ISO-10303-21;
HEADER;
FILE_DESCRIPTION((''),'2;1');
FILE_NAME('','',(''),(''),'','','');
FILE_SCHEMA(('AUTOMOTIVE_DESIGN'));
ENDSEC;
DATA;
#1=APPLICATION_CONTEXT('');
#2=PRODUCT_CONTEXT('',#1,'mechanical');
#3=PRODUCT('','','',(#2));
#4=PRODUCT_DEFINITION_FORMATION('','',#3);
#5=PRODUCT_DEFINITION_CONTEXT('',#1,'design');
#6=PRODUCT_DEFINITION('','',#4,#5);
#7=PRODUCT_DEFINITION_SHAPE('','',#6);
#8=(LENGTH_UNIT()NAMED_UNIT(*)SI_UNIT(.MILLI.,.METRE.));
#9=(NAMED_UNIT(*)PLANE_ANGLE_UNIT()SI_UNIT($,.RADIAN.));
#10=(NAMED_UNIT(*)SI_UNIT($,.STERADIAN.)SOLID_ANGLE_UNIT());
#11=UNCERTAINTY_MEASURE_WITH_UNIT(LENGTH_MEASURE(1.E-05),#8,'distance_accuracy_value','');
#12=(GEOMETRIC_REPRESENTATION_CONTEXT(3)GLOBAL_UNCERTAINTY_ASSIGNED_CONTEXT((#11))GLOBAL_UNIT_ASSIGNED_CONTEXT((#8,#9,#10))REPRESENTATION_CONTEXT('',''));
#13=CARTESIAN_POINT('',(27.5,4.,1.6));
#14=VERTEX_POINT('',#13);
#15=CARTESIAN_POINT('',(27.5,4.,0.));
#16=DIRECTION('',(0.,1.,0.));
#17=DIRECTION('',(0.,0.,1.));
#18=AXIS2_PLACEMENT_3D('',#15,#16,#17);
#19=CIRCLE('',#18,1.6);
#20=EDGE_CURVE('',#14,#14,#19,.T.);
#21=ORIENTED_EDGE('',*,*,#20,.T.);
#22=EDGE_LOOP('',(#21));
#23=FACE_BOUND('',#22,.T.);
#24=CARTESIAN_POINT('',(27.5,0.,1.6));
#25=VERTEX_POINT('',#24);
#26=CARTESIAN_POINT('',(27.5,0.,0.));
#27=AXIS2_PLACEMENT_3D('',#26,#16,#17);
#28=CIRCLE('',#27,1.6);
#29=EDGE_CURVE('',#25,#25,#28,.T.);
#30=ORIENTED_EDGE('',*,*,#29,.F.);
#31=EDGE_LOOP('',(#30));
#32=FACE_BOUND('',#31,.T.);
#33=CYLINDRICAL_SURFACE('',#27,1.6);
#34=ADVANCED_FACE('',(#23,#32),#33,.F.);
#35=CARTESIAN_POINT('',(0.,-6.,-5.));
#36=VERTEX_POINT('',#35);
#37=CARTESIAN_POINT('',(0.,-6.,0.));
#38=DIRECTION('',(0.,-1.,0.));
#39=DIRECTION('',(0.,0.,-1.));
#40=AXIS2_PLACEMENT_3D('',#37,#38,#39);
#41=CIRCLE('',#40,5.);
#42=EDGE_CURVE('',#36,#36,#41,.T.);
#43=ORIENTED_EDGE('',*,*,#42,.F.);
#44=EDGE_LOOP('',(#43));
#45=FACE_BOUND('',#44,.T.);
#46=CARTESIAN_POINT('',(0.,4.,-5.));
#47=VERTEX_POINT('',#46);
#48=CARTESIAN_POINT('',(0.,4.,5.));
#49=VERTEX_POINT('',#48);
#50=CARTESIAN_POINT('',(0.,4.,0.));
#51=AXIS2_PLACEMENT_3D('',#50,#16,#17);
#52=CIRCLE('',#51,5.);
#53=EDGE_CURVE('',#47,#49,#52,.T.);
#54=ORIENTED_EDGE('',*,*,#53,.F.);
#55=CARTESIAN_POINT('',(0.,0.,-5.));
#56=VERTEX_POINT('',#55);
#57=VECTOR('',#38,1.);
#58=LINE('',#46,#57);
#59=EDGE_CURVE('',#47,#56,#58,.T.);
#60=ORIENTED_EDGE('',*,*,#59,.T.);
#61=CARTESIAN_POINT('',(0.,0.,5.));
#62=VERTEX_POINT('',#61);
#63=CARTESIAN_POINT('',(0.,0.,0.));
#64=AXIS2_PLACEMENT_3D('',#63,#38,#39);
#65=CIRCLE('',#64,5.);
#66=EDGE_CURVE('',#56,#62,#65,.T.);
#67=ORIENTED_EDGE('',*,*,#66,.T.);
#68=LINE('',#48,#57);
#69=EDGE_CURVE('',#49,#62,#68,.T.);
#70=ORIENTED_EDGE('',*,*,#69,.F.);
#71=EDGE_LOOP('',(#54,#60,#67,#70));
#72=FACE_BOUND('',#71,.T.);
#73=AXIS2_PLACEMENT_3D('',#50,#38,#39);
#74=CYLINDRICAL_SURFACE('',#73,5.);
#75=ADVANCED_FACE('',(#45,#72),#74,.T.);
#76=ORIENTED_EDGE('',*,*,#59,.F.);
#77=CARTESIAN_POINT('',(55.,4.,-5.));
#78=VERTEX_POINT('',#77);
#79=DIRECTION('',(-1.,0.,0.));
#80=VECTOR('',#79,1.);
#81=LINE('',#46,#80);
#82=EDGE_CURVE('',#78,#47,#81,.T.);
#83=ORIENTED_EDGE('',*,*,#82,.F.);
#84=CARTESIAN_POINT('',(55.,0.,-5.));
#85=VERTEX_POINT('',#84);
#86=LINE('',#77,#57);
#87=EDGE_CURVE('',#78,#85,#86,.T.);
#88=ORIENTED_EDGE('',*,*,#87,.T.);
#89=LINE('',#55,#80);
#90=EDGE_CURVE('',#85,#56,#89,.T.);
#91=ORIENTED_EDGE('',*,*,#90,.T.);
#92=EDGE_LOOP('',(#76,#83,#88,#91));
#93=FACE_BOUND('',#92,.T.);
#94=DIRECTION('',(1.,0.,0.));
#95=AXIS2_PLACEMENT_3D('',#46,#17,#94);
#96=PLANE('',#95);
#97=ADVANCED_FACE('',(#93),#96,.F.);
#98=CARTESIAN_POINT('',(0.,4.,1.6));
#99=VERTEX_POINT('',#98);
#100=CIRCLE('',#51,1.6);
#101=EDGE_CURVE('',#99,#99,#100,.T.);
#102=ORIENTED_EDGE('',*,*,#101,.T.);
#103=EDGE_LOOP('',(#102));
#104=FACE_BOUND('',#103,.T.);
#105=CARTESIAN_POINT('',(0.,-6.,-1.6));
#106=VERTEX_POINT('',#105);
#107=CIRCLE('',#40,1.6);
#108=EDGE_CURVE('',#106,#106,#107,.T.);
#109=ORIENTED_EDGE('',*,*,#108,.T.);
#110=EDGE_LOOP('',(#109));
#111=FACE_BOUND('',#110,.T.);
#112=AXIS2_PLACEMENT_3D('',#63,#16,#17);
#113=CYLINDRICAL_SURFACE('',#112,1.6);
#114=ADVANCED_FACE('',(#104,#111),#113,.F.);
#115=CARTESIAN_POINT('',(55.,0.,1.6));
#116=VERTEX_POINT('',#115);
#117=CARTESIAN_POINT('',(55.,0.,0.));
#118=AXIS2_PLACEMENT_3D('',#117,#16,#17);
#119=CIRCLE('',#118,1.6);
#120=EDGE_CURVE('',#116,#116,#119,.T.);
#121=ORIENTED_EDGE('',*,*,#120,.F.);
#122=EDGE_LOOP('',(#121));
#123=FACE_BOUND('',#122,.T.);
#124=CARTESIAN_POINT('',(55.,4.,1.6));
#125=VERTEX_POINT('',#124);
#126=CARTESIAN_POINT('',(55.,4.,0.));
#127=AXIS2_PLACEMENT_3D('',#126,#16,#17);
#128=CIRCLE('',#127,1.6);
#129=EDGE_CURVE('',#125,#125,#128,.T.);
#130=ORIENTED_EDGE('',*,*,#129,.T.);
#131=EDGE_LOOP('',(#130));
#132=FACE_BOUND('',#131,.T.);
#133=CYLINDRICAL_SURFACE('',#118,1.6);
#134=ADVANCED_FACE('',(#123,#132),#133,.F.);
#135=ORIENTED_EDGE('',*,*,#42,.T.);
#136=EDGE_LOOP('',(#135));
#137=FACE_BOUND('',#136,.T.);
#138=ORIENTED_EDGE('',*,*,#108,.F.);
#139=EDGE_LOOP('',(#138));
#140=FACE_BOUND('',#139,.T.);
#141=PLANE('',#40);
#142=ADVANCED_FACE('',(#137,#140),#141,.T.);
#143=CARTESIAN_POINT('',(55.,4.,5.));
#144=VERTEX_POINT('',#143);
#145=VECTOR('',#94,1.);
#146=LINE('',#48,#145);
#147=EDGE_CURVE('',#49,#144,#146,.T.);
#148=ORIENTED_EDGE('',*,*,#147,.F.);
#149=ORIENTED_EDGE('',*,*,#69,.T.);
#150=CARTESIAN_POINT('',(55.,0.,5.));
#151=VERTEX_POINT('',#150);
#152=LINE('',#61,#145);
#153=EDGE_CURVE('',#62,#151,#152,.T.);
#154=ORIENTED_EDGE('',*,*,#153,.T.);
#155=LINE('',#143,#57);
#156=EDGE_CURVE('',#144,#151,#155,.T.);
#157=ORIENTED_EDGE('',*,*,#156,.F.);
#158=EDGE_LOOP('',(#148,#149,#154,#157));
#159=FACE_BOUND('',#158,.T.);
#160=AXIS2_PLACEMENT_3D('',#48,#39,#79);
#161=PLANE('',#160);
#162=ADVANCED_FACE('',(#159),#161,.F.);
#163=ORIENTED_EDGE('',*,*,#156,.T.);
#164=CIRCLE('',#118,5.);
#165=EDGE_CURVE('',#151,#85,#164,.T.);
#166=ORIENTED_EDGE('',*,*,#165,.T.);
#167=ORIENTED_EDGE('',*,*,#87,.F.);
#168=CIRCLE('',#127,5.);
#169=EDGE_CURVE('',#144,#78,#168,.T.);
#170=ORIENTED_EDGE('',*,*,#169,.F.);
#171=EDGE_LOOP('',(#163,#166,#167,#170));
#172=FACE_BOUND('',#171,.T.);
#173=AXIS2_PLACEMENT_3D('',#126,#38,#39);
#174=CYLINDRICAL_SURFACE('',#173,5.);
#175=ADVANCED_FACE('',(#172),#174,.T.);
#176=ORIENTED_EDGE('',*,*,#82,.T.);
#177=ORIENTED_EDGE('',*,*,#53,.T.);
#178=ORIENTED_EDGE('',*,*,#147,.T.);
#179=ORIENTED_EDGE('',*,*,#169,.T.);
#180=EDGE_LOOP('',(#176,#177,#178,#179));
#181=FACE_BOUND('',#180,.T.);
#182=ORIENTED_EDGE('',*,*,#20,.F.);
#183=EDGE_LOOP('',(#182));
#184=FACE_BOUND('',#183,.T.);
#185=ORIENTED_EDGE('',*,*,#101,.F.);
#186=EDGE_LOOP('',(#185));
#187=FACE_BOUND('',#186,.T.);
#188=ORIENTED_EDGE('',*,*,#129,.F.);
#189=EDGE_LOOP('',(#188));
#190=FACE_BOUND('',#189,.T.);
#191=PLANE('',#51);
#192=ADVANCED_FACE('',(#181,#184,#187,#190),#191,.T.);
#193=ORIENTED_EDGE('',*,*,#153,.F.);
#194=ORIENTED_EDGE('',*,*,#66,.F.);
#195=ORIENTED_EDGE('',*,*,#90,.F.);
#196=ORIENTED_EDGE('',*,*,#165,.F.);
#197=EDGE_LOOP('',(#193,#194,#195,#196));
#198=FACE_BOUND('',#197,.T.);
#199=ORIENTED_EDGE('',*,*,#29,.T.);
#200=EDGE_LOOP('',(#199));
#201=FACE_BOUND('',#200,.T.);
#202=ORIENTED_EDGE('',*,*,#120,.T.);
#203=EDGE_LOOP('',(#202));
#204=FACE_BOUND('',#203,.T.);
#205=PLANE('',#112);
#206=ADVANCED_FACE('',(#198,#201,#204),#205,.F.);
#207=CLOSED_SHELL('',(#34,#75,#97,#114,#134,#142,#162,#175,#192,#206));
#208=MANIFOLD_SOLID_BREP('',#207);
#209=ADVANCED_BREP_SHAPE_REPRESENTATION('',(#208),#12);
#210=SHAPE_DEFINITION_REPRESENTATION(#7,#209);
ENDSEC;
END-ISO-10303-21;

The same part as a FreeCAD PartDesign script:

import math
import FreeCAD as App
import Part
import Sketcher

V = App.Vector

doc = App.newDocument("Part")
body = doc.addObject("PartDesign::Body", "Body")

# Sketch on XZ plane
sketch1 = body.newObject("Sketcher::SketchObject", "Sketch")
sketch1.AttachmentSupport = (doc.getObject("XZ_Plane"), [""])
sketch1.MapMode = "FlatFace"
sketch1.addGeometry([
    Part.LineSegment(V(55, -5, 0), V(0, -5, 0)),
    Part.ArcOfCircle(Part.Circle(V(0, 0, 0), V(0, 0, 1), 5), math.radians(90), math.radians(270)),
    Part.LineSegment(V(0, 5, 0), V(55, 5, 0)),
    Part.ArcOfCircle(Part.Circle(V(55, 0, 0), V(0, 0, 1), 5), math.radians(-90), math.radians(90)),
], False)
sketch1.addConstraint([
    Sketcher.Constraint("Tangent", 0, 2, 1, 2),
    Sketcher.Constraint("Tangent", 1, 1, 2, 1),
    Sketcher.Constraint("Tangent", 2, 2, 3, 2),
    Sketcher.Constraint("Tangent", 3, 1, 0, 1),
    Sketcher.Constraint("Horizontal", 0),
    Sketcher.Constraint("Horizontal", 2),
    Sketcher.Constraint("Coincident", 1, 3, -1, 1),
    Sketcher.Constraint("Radius", 1, 5.0),
    Sketcher.Constraint("DistanceX", 0, 2, 0, 1, 55.0),
])
pad1 = body.newObject("PartDesign::Pad", "Pad")
pad1.Profile = sketch1
pad1.Length = 4
pad1.Reversed = True

# Sketch on XZ plane
sketch2 = body.newObject("Sketcher::SketchObject", "Sketch001")
sketch2.AttachmentSupport = (doc.getObject("XZ_Plane"), [""])
sketch2.MapMode = "FlatFace"
sketch2.AttachmentOffset = App.Placement(V(0, 0, -4), App.Rotation())
sketch2.addGeometry([
    Part.Circle(V(0, 0, 0), V(0, 0, 1), 1.6),
    Part.Circle(V(27.5, 0, 0), V(0, 0, 1), 1.6),
    Part.Circle(V(55, 0, 0), V(0, 0, 1), 1.6),
], False)
sketch2.addConstraint([
    Sketcher.Constraint("Coincident", 0, 3, -1, 1),
    Sketcher.Constraint("Equal", 0, 1),
    Sketcher.Constraint("Equal", 1, 2),
    Sketcher.Constraint("PointOnObject", 1, 3, -1),
    Sketcher.Constraint("PointOnObject", 2, 3, -1),
    Sketcher.Constraint("Diameter", 0, 3.2),
    Sketcher.Constraint("DistanceX", -1, 1, 2, 3, 55.0),
    Sketcher.Constraint("DistanceX", -1, 1, 1, 3, 27.5),
])
pocket1 = body.newObject("PartDesign::Pocket", "Pocket")
pocket1.Profile = sketch2
pocket1.Type = "ThroughAll"
pocket1.Reversed = True

# Sketch on XZ plane
sketch3 = body.newObject("Sketcher::SketchObject", "Sketch002")
sketch3.AttachmentSupport = (doc.getObject("XZ_Plane"), [""])
sketch3.MapMode = "FlatFace"
sketch3.addGeometry(Part.Circle(V(0, 0, 0), V(0, 0, 1), 5), False)
sketch3.addConstraint([
    Sketcher.Constraint("Coincident", 0, 3, -1, 1),
    Sketcher.Constraint("Diameter", 0, 10.0),
])
pad2 = body.newObject("PartDesign::Pad", "Pad001")
pad2.Profile = sketch3
pad2.Length = 6

# Sketch on XZ plane
sketch4 = body.newObject("Sketcher::SketchObject", "Sketch003")
sketch4.AttachmentSupport = (doc.getObject("XZ_Plane"), [""])
sketch4.MapMode = "FlatFace"
sketch4.AttachmentOffset = App.Placement(V(0, 0, 6), App.Rotation())
sketch4.addGeometry(Part.Circle(V(0, 0, 0), V(0, 0, 1), 1.6), False)
sketch4.addConstraint([
    Sketcher.Constraint("Coincident", 0, 3, -1, 1),
    Sketcher.Constraint("Diameter", 0, 3.2),
])
pocket2 = body.newObject("PartDesign::Pocket", "Pocket001")
pocket2.Profile = sketch4
pocket2.Length = 6

doc.recompute()
